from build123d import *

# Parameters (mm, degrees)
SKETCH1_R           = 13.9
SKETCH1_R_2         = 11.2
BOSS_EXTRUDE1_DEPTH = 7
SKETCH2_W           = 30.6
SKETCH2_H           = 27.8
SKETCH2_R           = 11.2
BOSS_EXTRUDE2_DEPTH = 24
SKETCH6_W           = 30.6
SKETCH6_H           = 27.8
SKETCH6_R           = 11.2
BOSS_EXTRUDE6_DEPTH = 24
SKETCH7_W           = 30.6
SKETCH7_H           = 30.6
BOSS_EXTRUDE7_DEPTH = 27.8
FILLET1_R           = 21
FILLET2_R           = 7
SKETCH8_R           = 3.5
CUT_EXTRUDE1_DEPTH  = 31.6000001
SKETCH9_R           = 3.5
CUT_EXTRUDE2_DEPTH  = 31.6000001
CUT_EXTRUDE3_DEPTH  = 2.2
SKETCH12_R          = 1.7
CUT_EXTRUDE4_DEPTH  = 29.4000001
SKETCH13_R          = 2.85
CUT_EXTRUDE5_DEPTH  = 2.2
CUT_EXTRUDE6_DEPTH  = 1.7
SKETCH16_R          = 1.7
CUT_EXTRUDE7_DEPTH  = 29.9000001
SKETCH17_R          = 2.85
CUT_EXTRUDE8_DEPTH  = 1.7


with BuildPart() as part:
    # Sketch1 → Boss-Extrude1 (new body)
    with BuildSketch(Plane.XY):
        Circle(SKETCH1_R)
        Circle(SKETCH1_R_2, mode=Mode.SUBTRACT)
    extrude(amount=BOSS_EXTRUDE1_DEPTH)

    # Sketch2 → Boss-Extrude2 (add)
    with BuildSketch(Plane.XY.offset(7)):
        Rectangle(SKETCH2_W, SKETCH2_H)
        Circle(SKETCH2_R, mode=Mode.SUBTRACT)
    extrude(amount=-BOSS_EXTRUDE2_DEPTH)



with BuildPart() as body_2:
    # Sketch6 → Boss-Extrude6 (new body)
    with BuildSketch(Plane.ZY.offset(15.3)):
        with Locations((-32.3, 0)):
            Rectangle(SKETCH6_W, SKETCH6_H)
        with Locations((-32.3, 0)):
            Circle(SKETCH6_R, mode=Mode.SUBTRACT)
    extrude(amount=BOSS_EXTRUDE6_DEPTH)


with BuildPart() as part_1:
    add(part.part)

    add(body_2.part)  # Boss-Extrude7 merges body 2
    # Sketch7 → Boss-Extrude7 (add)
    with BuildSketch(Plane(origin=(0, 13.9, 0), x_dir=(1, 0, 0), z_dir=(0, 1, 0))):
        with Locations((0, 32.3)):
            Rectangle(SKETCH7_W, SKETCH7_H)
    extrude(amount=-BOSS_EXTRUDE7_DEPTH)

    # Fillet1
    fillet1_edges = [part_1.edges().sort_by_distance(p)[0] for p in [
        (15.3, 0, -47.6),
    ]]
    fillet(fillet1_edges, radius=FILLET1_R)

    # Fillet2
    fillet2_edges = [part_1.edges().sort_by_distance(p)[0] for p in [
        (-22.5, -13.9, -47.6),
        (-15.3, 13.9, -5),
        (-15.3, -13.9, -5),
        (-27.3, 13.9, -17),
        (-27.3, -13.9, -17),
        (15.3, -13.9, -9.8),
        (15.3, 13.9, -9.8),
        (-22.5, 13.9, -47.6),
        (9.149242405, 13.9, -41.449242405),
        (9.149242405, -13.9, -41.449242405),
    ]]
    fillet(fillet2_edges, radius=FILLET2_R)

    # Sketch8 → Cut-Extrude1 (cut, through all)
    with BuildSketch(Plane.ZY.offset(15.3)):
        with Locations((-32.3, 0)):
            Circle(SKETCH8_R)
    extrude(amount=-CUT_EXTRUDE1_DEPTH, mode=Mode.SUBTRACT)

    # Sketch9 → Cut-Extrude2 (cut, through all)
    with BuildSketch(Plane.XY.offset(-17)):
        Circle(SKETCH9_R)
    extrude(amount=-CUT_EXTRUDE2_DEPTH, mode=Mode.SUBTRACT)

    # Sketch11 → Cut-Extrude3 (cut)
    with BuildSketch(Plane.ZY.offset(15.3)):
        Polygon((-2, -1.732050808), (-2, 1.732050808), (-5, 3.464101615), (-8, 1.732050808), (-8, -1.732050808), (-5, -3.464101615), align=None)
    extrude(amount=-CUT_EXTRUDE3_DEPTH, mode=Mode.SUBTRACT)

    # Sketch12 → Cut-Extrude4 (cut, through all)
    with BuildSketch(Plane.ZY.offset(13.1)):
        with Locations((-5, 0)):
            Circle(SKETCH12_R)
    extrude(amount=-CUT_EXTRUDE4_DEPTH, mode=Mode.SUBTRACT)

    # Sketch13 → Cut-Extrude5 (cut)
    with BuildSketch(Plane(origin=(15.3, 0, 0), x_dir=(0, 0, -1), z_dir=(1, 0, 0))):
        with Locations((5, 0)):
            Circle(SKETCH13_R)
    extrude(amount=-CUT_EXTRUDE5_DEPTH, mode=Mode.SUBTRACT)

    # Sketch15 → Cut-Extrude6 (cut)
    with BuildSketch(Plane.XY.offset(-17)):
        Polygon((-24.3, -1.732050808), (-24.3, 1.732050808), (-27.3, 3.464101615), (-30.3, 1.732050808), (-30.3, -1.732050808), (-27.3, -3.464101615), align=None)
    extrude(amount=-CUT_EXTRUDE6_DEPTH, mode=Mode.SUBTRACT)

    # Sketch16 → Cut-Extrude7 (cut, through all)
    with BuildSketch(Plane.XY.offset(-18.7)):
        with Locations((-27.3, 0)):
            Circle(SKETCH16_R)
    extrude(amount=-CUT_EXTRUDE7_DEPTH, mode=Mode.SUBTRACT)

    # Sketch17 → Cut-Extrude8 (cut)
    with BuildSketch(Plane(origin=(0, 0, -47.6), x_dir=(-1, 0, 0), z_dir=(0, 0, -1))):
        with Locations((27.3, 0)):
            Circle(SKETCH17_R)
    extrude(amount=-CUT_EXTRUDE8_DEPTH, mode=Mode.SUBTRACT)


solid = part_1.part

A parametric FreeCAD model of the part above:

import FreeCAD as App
import Part
import Sketcher
from FreeCAD import Vector
Q = App.Units.Quantity


def edges_at(feature, points):
    """Names of the edges that pass closest to the given points."""
    edges = feature.Shape.Edges
    near = lambda p: min(range(len(edges)), key=lambda i: edges[i].distToShape(Part.Vertex(*p))[0])
    return sorted({f"Edge{near(p) + 1}" for p in points})

doc = App.newDocument("Part")
body = doc.addObject("PartDesign::Body", "Body")

# Sketch on XY plane
sketch1 = body.newObject("Sketcher::SketchObject", "Sketch")
sketch1.AttachmentSupport = (doc.getObject("XY_Plane"), [""])
sketch1.MapMode = "FlatFace"
sketch1.addGeometry([
    Part.Circle(Vector(0, 0, 0), Vector(0, 0, 1), 14),
    Part.Circle(Vector(0, 0, 0), Vector(0, 0, 1), 11),
], False)
sketch1.addConstraint([
    Sketcher.Constraint("Coincident", 0, 3, -1, 1),
    Sketcher.Constraint("Coincident", 1, 3, -1, 1),
    Sketcher.Constraint("Diameter", 0, 27.8),
    Sketcher.Constraint("Diameter", 1, 22.4),
])
pad1 = body.newObject("PartDesign::Pad", "Pad")
pad1.Profile = sketch1
pad1.Length = 7

# Sketch on XY plane
sketch2 = body.newObject("Sketcher::SketchObject", "Sketch001")
sketch2.AttachmentSupport = (doc.getObject("XY_Plane"), [""])
sketch2.MapMode = "FlatFace"
sketch2.AttachmentOffset = App.Placement(Vector(0, 0, 7), App.Rotation())
sketch2.addGeometry([
    Part.LineSegment(Vector(-15, 14, 0), Vector(-15, -14, 0)),  # 0
    Part.LineSegment(Vector(-15, -14, 0), Vector(15, -14, 0)),  # 1
    Part.LineSegment(Vector(15, -14, 0), Vector(15, 14, 0)),  # 2
    Part.LineSegment(Vector(15, 14, 0), Vector(-15, 14, 0)),  # 3
    Part.Circle(Vector(0, 0, 0), Vector(0, 0, 1), 11),  # 4
], False)
sketch2.addConstraint([
    Sketcher.Constraint("Coincident", 0, 2, 1, 1),
    Sketcher.Constraint("Coincident", 1, 2, 2, 1),
    Sketcher.Constraint("Coincident", 2, 2, 3, 1),
    Sketcher.Constraint("Coincident", 3, 2, 0, 1),
    Sketcher.Constraint("Vertical", 0),
    Sketcher.Constraint("Horizontal", 1),
    Sketcher.Constraint("Vertical", 2),
    Sketcher.Constraint("Horizontal", 3),
    Sketcher.Constraint("Coincident", 4, 3, -1, 1),
    Sketcher.Constraint("Symmetric", 0, 2, 2, 2, -1, 1),
    Sketcher.Constraint("Diameter", 4, 22.4),
    Sketcher.Constraint("DistanceX", 1, 1, 1, 2, 30.6),
    Sketcher.Constraint("DistanceY", 0, 2, 0, 1, 27.8),
])
pad2 = body.newObject("PartDesign::Pad", "Pad001")
pad2.Profile = sketch2
pad2.Length = 24
pad2.Reversed = True
body2 = doc.addObject("PartDesign::Body", "Body001")

# Sketch on YZ plane
sketch3 = body2.newObject("Sketcher::SketchObject", "Sketch002")
sketch3.AttachmentSupport = (doc.getObject("YZ_Plane001"), [""])
sketch3.MapMode = "FlatFace"
sketch3.AttachmentOffset = App.Placement(Vector(0, 0, -15.3), App.Rotation())
sketch3.addGeometry([
    Part.LineSegment(Vector(14, -48, 0), Vector(-14, -48, 0)),  # 0
    Part.LineSegment(Vector(-14, -48, 0), Vector(-14, -17, 0)),  # 1
    Part.LineSegment(Vector(-14, -17, 0), Vector(14, -17, 0)),  # 2
    Part.LineSegment(Vector(14, -17, 0), Vector(14, -48, 0)),  # 3
    Part.Circle(Vector(0, -32, 0), Vector(0, 0, 1), 11),  # 4
], False)
sketch3.addConstraint([
    Sketcher.Constraint("Coincident", 0, 2, 1, 1),
    Sketcher.Constraint("Coincident", 1, 2, 2, 1),
    Sketcher.Constraint("Coincident", 2, 2, 3, 1),
    Sketcher.Constraint("Coincident", 3, 2, 0, 1),
    Sketcher.Constraint("Horizontal", 0),
    Sketcher.Constraint("Vertical", 1),
    Sketcher.Constraint("Horizontal", 2),
    Sketcher.Constraint("Vertical", 3),
    Sketcher.Constraint("PointOnObject", 4, 3, -2),
    Sketcher.Constraint("Diameter", 4, 22.4),
    Sketcher.Constraint("DistanceX", 0, 2, 0, 1, 27.8),
    Sketcher.Constraint("DistanceY", 1, 1, 1, 2, 30.6),
    Sketcher.Constraint("DistanceY", 1, 2, -1, 1, 17.0),
    Sketcher.Constraint("DistanceY", 4, 3, -1, 1, 32.3),
    Sketcher.Constraint("DistanceX", 0, 2, -1, 1, 13.9),
])
pad3 = body2.newObject("PartDesign::Pad", "Pad002")
pad3.Profile = sketch3
pad3.Length = 24
pad3.Reversed = True
body.AllowCompound = True
doc.recompute()

boolean = body.newObject("PartDesign::Boolean", "Boolean")
boolean.Type = "Fuse"
boolean.addObjects([body2])

# Sketch on XZ plane
sketch4 = body.newObject("Sketcher::SketchObject", "Sketch003")
sketch4.AttachmentSupport = (doc.getObject("XZ_Plane"), [""])
sketch4.MapMode = "FlatFace"
sketch4.AttachmentOffset = App.Placement(Vector(0, 0, -13.9), App.Rotation())
sketch4.addGeometry([
    Part.LineSegment(Vector(-15, -48, 0), Vector(-15, -17, 0)),
    Part.LineSegment(Vector(-15, -17, 0), Vector(15, -17, 0)),
    Part.LineSegment(Vector(15, -17, 0), Vector(15, -48, 0)),
    Part.LineSegment(Vector(15, -48, 0), Vector(-15, -48, 0)),
], False)
sketch4.addConstraint([
    Sketcher.Constraint("Coincident", 0, 2, 1, 1),
    Sketcher.Constraint("Coincident", 1, 2, 2, 1),
    Sketcher.Constraint("Coincident", 2, 2, 3, 1),
    Sketcher.Constraint("Coincident", 3, 2, 0, 1),
    Sketcher.Constraint("Vertical", 0),
    Sketcher.Constraint("Horizontal", 1),
    Sketcher.Constraint("Vertical", 2),
    Sketcher.Constraint("Horizontal", 3),
    Sketcher.Constraint("Equal", 3, 0),
    Sketcher.Constraint("DistanceX", 1, 1, 1, 2, 30.6),
    Sketcher.Constraint("DistanceY", 0, 2, -1, 1, 17.0),
    Sketcher.Constraint("DistanceX", 0, 2, -1, 1, 15.3),
])
pad4 = body.newObject("PartDesign::Pad", "Pad003")
pad4.Profile = sketch4
pad4.Length = 27.8
doc.recompute()

fillet = body.newObject("PartDesign::Fillet", "Fillet")
fillet.Base = (pad4, edges_at(pad4, [(15.3, 0, -47.6)]))
fillet.Radius = 21
doc.recompute()

fillet2 = body.newObject("PartDesign::Fillet", "Fillet001")
fillet2.Base = (fillet, edges_at(fillet, [
    (-22.5, -13.9, -47.6),
    (-15.3, 13.9, -5),
    (-15.3, -13.9, -5),
    (-27.3, 13.9, -17),
    (-27.3, -13.9, -17),
    (15.3, -13.9, -9.8),
    (15.3, 13.9, -9.8),
    (-22.5, 13.9, -47.6),
    (9.149, 13.9, -41.449),
    (9.149, -13.9, -41.449),
]))
fillet2.Radius = 7

# Sketch on YZ plane
sketch5 = body.newObject("Sketcher::SketchObject", "Sketch004")
sketch5.AttachmentSupport = (doc.getObject("YZ_Plane"), [""])
sketch5.MapMode = "FlatFace"
sketch5.AttachmentOffset = App.Placement(Vector(0, 0, -15.3), App.Rotation())
sketch5.addGeometry(Part.Circle(Vector(0, -32.3, 0), Vector(0, 0, 1), 3.5), False)
sketch5.addConstraint([
    Sketcher.Constraint("PointOnObject", 0, 3, -2),
    Sketcher.Constraint("Diameter", 0, 7.0),
    Sketcher.Constraint("DistanceY", 0, 3, -1, 1, 32.3),
])
pocket1 = body.newObject("PartDesign::Pocket", "Pocket")
pocket1.Profile = sketch5
pocket1.Type = "ThroughAll"
pocket1.Reversed = True

# Sketch on XY plane
sketch6 = body.newObject("Sketcher::SketchObject", "Sketch005")
sketch6.AttachmentSupport = (doc.getObject("XY_Plane"), [""])
sketch6.MapMode = "FlatFace"
sketch6.AttachmentOffset = App.Placement(Vector(0, 0, -17), App.Rotation())
sketch6.addGeometry(Part.Circle(Vector(0, 0, 0), Vector(0, 0, 1), 3.5), False)
sketch6.addConstraint([
    Sketcher.Constraint("Coincident", 0, 3, -1, 1),
    Sketcher.Constraint("Diameter", 0, 7.0),
])
pocket2 = body.newObject("PartDesign::Pocket", "Pocket001")
pocket2.Profile = sketch6
pocket2.Type = "ThroughAll"

# Sketch on YZ plane
sketch7 = body.newObject("Sketcher::SketchObject", "Sketch006")
sketch7.AttachmentSupport = (doc.getObject("YZ_Plane"), [""])
sketch7.MapMode = "FlatFace"
sketch7.AttachmentOffset = App.Placement(Vector(0, 0, -15.3), App.Rotation())
sketch7.addGeometry([
    Part.LineSegment(Vector(-1.7, -2, 0), Vector(1.7, -2, 0)),  # 0
    Part.LineSegment(Vector(1.7, -2, 0), Vector(3.5, -5, 0)),  # 1
    Part.LineSegment(Vector(3.5, -5, 0), Vector(1.7, -8, 0)),  # 2
    Part.LineSegment(Vector(1.7, -8, 0), Vector(-1.7, -8, 0)),  # 3
    Part.LineSegment(Vector(-1.7, -8, 0), Vector(-3.5, -5, 0)),  # 4
    Part.LineSegment(Vector(-3.5, -5, 0), Vector(-1.7, -2, 0)),  # 5
], False)
sketch7.addConstraint([
    Sketcher.Constraint("Coincident", 0, 2, 1, 1),
    Sketcher.Constraint("Coincident", 1, 2, 2, 1),
    Sketcher.Constraint("Coincident", 2, 2, 3, 1),
    Sketcher.Constraint("Coincident", 3, 2, 4, 1),
    Sketcher.Constraint("Coincident", 4, 2, 5, 1),
    Sketcher.Constraint("Coincident", 5, 2, 0, 1),
    Sketcher.Constraint("Horizontal", 0),
    Sketcher.Constraint("Horizontal", 3),
    Sketcher.Constraint("Symmetric", 1, 2, 4, 2, -2),
    Sketcher.Constraint("Parallel", 1, 4),
    Sketcher.Constraint("Parallel", 2, 5),
    Sketcher.Constraint("Vertical", 0, 2, 2, 2),
    Sketcher.Constraint("Vertical", 3, 2, 5, 2),
    Sketcher.Constraint("Angle", 1, Q("-60 deg")),
    Sketcher.Constraint("DistanceY", 0, 2, -1, 1, 2.0),
    Sketcher.Constraint("DistanceY", 1, 2, -1, 1, 5.0),
    Sketcher.Constraint("DistanceX", 0, 1, 0, 2, 3.464102),
])
pocket3 = body.newObject("PartDesign::Pocket", "Pocket002")
pocket3.Profile = sketch7
pocket3.Length = 2.2
pocket3.Reversed = True

# Sketch on YZ plane
sketch8 = body.newObject("Sketcher::SketchObject", "Sketch007")
sketch8.AttachmentSupport = (doc.getObject("YZ_Plane"), [""])
sketch8.MapMode = "FlatFace"
sketch8.AttachmentOffset = App.Placement(Vector(0, 0, -13.1), App.Rotation())
sketch8.addGeometry(Part.Circle(Vector(0, -5, 0), Vector(0, 0, 1), 1.7), False)
sketch8.addConstraint([
    Sketcher.Constraint("PointOnObject", 0, 3, -2),
    Sketcher.Constraint("Diameter", 0, 3.4),
    Sketcher.Constraint("DistanceY", 0, 3, -1, 1, 5.0),
])
pocket4 = body.newObject("PartDesign::Pocket", "Pocket003")
pocket4.Profile = sketch8
pocket4.Type = "ThroughAll"
pocket4.Reversed = True

# Sketch on YZ plane
sketch9 = body.newObject("Sketcher::SketchObject", "Sketch008")
sketch9.AttachmentSupport = (doc.getObject("YZ_Plane"), [""])
sketch9.MapMode = "FlatFace"
sketch9.AttachmentOffset = App.Placement(Vector(0, 0, 15.3), App.Rotation())
sketch9.addGeometry(Part.Circle(Vector(0, -5, 0), Vector(0, 0, 1), 2.9), False)
sketch9.addConstraint([
    Sketcher.Constraint("PointOnObject", 0, 3, -2),
    Sketcher.Constraint("Diameter", 0, 5.7),
    Sketcher.Constraint("DistanceY", 0, 3, -1, 1, 5.0),
])
pocket5 = body.newObject("PartDesign::Pocket", "Pocket004")
pocket5.Profile = sketch9
pocket5.Length = 2.2

# Sketch on XY plane
sketch10 = body.newObject("Sketcher::SketchObject", "Sketch009")
sketch10.AttachmentSupport = (doc.getObject("XY_Plane"), [""])
sketch10.MapMode = "FlatFace"
sketch10.AttachmentOffset = App.Placement(Vector(0, 0, -17), App.Rotation())
sketch10.addGeometry([
    Part.LineSegment(Vector(-24.3, -1.7, 0), Vector(-24.3, 1.7, 0)),  # 0
    Part.LineSegment(Vector(-24.3, 1.7, 0), Vector(-27.3, 3.5, 0)),  # 1
    Part.LineSegment(Vector(-27.3, 3.5, 0), Vector(-30.3, 1.7, 0)),  # 2
    Part.LineSegment(Vector(-30.3, 1.7, 0), Vector(-30.3, -1.7, 0)),  # 3
    Part.LineSegment(Vector(-30.3, -1.7, 0), Vector(-27.3, -3.5, 0)),  # 4
    Part.LineSegment(Vector(-27.3, -3.5, 0), Vector(-24.3, -1.7, 0)),  # 5
], False)
sketch10.addConstraint([
    Sketcher.Constraint("Coincident", 0, 2, 1, 1),
    Sketcher.Constraint("Coincident", 1, 2, 2, 1),
    Sketcher.Constraint("Coincident", 2, 2, 3, 1),
    Sketcher.Constraint("Coincident", 3, 2, 4, 1),
    Sketcher.Constraint("Coincident", 4, 2, 5, 1),
    Sketcher.Constraint("Coincident", 5, 2, 0, 1),
    Sketcher.Constraint("Vertical", 0),
    Sketcher.Constraint("Vertical", 3),
    Sketcher.Constraint("Symmetric", 1, 2, 4, 2, -1),
    Sketcher.Constraint("Parallel", 1, 4),
    Sketcher.Constraint("Parallel", 2, 5),
    Sketcher.Constraint("Horizontal", 0, 2, 2, 2),
    Sketcher.Constraint("Horizontal", 3, 2, 5, 2),
    Sketcher.Constraint("Angle", 1, Q("150 deg")),
    Sketcher.Constraint("DistanceX", 1, 2, 0, 2, 3.0),
    Sketcher.Constraint("DistanceX", 0, 2, -1, 1, 24.3),
    Sketcher.Constraint("DistanceY", 0, 1, 0, 2, 3.464102),
])
pocket6 = body.newObject("PartDesign::Pocket", "Pocket005")
pocket6.Profile = sketch10
pocket6.Length = 1.7

# Sketch on XY plane
sketch11 = body.newObject("Sketcher::SketchObject", "Sketch010")
sketch11.AttachmentSupport = (doc.getObject("XY_Plane"), [""])
sketch11.MapMode = "FlatFace"
sketch11.AttachmentOffset = App.Placement(Vector(0, 0, -18.7), App.Rotation())
sketch11.addGeometry(Part.Circle(Vector(-27.3, 0, 0), Vector(0, 0, 1), 1.7), False)
sketch11.addConstraint([
    Sketcher.Constraint("PointOnObject", 0, 3, -1),
    Sketcher.Constraint("Diameter", 0, 3.4),
    Sketcher.Constraint("DistanceX", 0, 3, -1, 1, 27.3),
])
pocket7 = body.newObject("PartDesign::Pocket", "Pocket006")
pocket7.Profile = sketch11
pocket7.Type = "ThroughAll"

# Sketch on XY plane
sketch12 = body.newObject("Sketcher::SketchObject", "Sketch011")
sketch12.AttachmentSupport = (doc.getObject("XY_Plane"), [""])
sketch12.MapMode = "FlatFace"
sketch12.AttachmentOffset = App.Placement(Vector(0, 0, -47.6), App.Rotation())
sketch12.addGeometry(Part.Circle(Vector(-27.3, 0, 0), Vector(0, 0, 1), 2.9), False)
sketch12.addConstraint([
    Sketcher.Constraint("PointOnObject", 0, 3, -1),
    Sketcher.Constraint("Diameter", 0, 5.7),
    Sketcher.Constraint("DistanceX", 0, 3, -1, 1, 27.3),
])
pocket8 = body.newObject("PartDesign::Pocket", "Pocket007")
pocket8.Profile = sketch12
pocket8.Length = 1.7
pocket8.Reversed = True

doc.recompute()
